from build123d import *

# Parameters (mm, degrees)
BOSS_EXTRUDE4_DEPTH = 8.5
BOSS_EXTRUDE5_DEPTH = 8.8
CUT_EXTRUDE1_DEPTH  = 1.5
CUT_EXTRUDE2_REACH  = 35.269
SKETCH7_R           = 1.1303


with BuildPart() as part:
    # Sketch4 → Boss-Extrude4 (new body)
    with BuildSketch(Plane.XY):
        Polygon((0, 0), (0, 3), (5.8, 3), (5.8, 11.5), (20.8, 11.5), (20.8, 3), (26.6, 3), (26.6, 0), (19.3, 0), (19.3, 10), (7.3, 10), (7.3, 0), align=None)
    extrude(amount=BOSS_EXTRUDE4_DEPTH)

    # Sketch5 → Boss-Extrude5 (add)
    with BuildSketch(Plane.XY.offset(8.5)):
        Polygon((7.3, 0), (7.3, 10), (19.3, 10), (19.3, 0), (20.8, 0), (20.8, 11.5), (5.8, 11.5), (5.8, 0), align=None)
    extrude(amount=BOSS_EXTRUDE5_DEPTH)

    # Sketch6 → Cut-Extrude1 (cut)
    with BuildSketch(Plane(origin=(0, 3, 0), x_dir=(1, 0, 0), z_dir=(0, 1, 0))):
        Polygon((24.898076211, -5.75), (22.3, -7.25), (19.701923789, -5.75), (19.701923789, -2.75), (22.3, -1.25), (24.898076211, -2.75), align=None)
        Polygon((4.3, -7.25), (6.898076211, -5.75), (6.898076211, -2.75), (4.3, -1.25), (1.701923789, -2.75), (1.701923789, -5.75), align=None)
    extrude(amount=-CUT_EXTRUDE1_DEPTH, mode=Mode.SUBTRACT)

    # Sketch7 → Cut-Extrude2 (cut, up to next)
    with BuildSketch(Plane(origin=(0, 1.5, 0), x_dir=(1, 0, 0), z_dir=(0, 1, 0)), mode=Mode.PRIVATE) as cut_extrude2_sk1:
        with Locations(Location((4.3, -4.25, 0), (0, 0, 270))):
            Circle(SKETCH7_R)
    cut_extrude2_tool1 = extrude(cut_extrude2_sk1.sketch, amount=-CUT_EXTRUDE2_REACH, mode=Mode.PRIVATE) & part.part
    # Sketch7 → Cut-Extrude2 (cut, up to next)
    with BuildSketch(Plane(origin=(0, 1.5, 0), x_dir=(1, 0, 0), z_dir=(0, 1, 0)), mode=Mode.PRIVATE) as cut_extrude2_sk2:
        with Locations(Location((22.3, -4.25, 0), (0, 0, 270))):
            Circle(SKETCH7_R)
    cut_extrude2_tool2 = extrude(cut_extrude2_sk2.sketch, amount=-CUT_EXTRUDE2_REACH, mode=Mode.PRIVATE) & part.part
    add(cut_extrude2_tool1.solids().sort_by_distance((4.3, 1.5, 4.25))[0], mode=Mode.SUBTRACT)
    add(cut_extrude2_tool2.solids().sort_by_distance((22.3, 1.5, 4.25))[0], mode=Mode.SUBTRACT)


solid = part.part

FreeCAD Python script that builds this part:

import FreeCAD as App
import Part
import Sketcher

V = App.Vector
Q = App.Units.Quantity

doc = App.newDocument("Part")
params = doc.addObject("Spreadsheet::Sheet", "Params")
for row, (alias, value) in enumerate([
    ("sketch1_width", "12 mm"),
    ("sketch1_width2", "15 mm"),
    ("sketch1_height", "3 mm"),
    ("sketch1_height2", "10 mm"),
    ("sketch1_width3", "7.3 mm"),
    ("pad1_length", "8.5 mm"),
    ("sketch2_width", "12 mm"),
    ("sketch2_width2", "15 mm"),
    ("sketch2_height", "10 mm"),
    ("sketch2_height2", "11.5 mm"),
    ("pad2_length", "8.8 mm"),
    ("sketch3_height", "3 mm"),
    ("sketch3_length", "3 mm"),
    ("pocket1_length", "1.5 mm"),
], start=1):
    params.set(f"A{row}", alias)
    params.set(f"B{row}", "=" + value)
    params.setAlias(f"B{row}", alias)

body = doc.addObject("PartDesign::Body", "Body")

# Sketch on XY plane
sketch1 = body.newObject("Sketcher::SketchObject", "Sketch")
sketch1.AttachmentSupport = (doc.getObject("XY_Plane"), [""])
sketch1.MapMode = "FlatFace"
sketch1.addGeometry([
    Part.LineSegment(V(0, 3, 0), V(0, 0, 0)),  # 0
    Part.LineSegment(V(0, 0, 0), V(7.3, 0, 0)),  # 1
    Part.LineSegment(V(7.3, 0, 0), V(7.3, 10, 0)),  # 2
    Part.LineSegment(V(7.3, 10, 0), V(19.3, 10, 0)),  # 3
    Part.LineSegment(V(19.3, 10, 0), V(19.3, 0, 0)),  # 4
    Part.LineSegment(V(19.3, 0, 0), V(26.6, 0, 0)),  # 5
    Part.LineSegment(V(26.6, 0, 0), V(26.6, 3, 0)),  # 6
    Part.LineSegment(V(26.6, 3, 0), V(20.8, 3, 0)),  # 7
    Part.LineSegment(V(20.8, 3, 0), V(20.8, 11.5, 0)),  # 8
    Part.LineSegment(V(20.8, 11.5, 0), V(5.8, 11.5, 0)),  # 9
    Part.LineSegment(V(5.8, 11.5, 0), V(5.8, 3, 0)),  # 10
    Part.LineSegment(V(5.8, 3, 0), V(0, 3, 0)),  # 11
], False)
sketch1.addConstraint([
    Sketcher.Constraint("Coincident", 0, 2, 1, 1),
    Sketcher.Constraint("Coincident", 1, 2, 2, 1),
    Sketcher.Constraint("Coincident", 2, 2, 3, 1),
    Sketcher.Constraint("Coincident", 3, 2, 4, 1),
    Sketcher.Constraint("Coincident", 4, 2, 5, 1),
    Sketcher.Constraint("Coincident", 5, 2, 6, 1),
    Sketcher.Constraint("Coincident", 6, 2, 7, 1),
    Sketcher.Constraint("Coincident", 7, 2, 8, 1),
    Sketcher.Constraint("Coincident", 8, 2, 9, 1),
    Sketcher.Constraint("Coincident", 9, 2, 10, 1),
    Sketcher.Constraint("Coincident", 10, 2, 11, 1),
    Sketcher.Constraint("Coincident", 11, 2, 0, 1),
    Sketcher.Constraint("Vertical", 0),
    Sketcher.Constraint("Horizontal", 1),
    Sketcher.Constraint("Vertical", 2),
    Sketcher.Constraint("Horizontal", 3),
    Sketcher.Constraint("Vertical", 4),
    Sketcher.Constraint("Horizontal", 5),
    Sketcher.Constraint("Vertical", 6),
    Sketcher.Constraint("Horizontal", 7),
    Sketcher.Constraint("Vertical", 8),
    Sketcher.Constraint("Horizontal", 9),
    Sketcher.Constraint("Vertical", 10),
    Sketcher.Constraint("Horizontal", 11),
    Sketcher.Constraint("Coincident", 0, 2, -1, 1),
    Sketcher.Constraint("PointOnObject", 4, 2, -1),
    Sketcher.Constraint("Horizontal", 7, 2, 10, 2),
    Sketcher.Constraint("Equal", 1, 5),
    Sketcher.Constraint("Equal", 7, 11),
    Sketcher.Constraint("DistanceX", 3, 1, 3, 2, 12.0),
    Sketcher.Constraint("DistanceX", 9, 2, 9, 1, 15.0),
    Sketcher.Constraint("DistanceY", 0, 2, 0, 1, 3.0),
    Sketcher.Constraint("DistanceY", 2, 1, 2, 2, 10.0),
    Sketcher.Constraint("DistanceX", 1, 1, 1, 2, 7.3),
    Sketcher.Constraint("DistanceY", 8, 1, 8, 2, 8.5),
])
sketch1.setExpression("Constraints[29]", "Params.sketch1_width")
sketch1.setExpression("Constraints[30]", "Params.sketch1_width2")
sketch1.setExpression("Constraints[31]", "Params.sketch1_height")
sketch1.setExpression("Constraints[32]", "Params.sketch1_height2")
sketch1.setExpression("Constraints[33]", "Params.sketch1_width3")
pad1 = body.newObject("PartDesign::Pad", "Pad")
pad1.Profile = sketch1
pad1.setExpression("Length", "Params.pad1_length")

# Sketch on XY plane
sketch2 = body.newObject("Sketcher::SketchObject", "Sketch001")
sketch2.AttachmentSupport = (doc.getObject("XY_Plane"), [""])
sketch2.MapMode = "FlatFace"
sketch2.AttachmentOffset = App.Placement(V(0, 0, 8.5), App.Rotation())
sketch2.addGeometry([
    Part.LineSegment(V(7.3, 0, 0), V(7.3, 10, 0)),  # 0
    Part.LineSegment(V(7.3, 10, 0), V(19.3, 10, 0)),  # 1
    Part.LineSegment(V(19.3, 10, 0), V(19.3, 0, 0)),  # 2
    Part.LineSegment(V(19.3, 0, 0), V(20.8, 0, 0)),  # 3
    Part.LineSegment(V(20.8, 0, 0), V(20.8, 11.5, 0)),  # 4
    Part.LineSegment(V(20.8, 11.5, 0), V(5.8, 11.5, 0)),  # 5
    Part.LineSegment(V(5.8, 11.5, 0), V(5.8, 0, 0)),  # 6
    Part.LineSegment(V(5.8, 0, 0), V(7.3, 0, 0)),  # 7
], False)
sketch2.addConstraint([
    Sketcher.Constraint("Coincident", 0, 2, 1, 1),
    Sketcher.Constraint("Coincident", 1, 2, 2, 1),
    Sketcher.Constraint("Coincident", 2, 2, 3, 1),
    Sketcher.Constraint("Coincident", 3, 2, 4, 1),
    Sketcher.Constraint("Coincident", 4, 2, 5, 1),
    Sketcher.Constraint("Coincident", 5, 2, 6, 1),
    Sketcher.Constraint("Coincident", 6, 2, 7, 1),
    Sketcher.Constraint("Coincident", 7, 2, 0, 1),
    Sketcher.Constraint("Vertical", 0),
    Sketcher.Constraint("Horizontal", 1),
    Sketcher.Constraint("Vertical", 2),
    Sketcher.Constraint("Horizontal", 3),
    Sketcher.Constraint("Vertical", 4),
    Sketcher.Constraint("Horizontal", 5),
    Sketcher.Constraint("Vertical", 6),
    Sketcher.Constraint("Horizontal", 7),
    Sketcher.Constraint("PointOnObject", 2, 2, -1),
    Sketcher.Constraint("PointOnObject", 6, 2, -1),
    Sketcher.Constraint("Equal", 3, 7),
    Sketcher.Constraint("DistanceX", 1, 1, 1, 2, 12.0),
    Sketcher.Constraint("DistanceX", 5, 2, 5, 1, 15.0),
    Sketcher.Constraint("DistanceY", 0, 1, 0, 2, 10.0),
    Sketcher.Constraint("DistanceY", 4, 1, 4, 2, 11.5),
    Sketcher.Constraint("DistanceX", -1, 1, 0, 2, 7.3),
])
sketch2.setExpression("Constraints[19]", "Params.sketch2_width")
sketch2.setExpression("Constraints[20]", "Params.sketch2_width2")
sketch2.setExpression("Constraints[21]", "Params.sketch2_height")
sketch2.setExpression("Constraints[22]", "Params.sketch2_height2")
pad2 = body.newObject("PartDesign::Pad", "Pad001")
pad2.Profile = sketch2
pad2.setExpression("Length", "Params.pad2_length")

# Sketch on XZ plane
sketch3 = body.newObject("Sketcher::SketchObject", "Sketch002")
sketch3.AttachmentSupport = (doc.getObject("XZ_Plane"), [""])
sketch3.MapMode = "FlatFace"
sketch3.AttachmentOffset = App.Placement(V(0, 0, -3), App.Rotation())
sketch3.addGeometry([
    Part.LineSegment(V(22.3, 7.2, 0), V(24.9, 5.8, 0)),  # 0
    Part.LineSegment(V(24.9, 5.8, 0), V(24.9, 2.8, 0)),  # 1
    Part.LineSegment(V(24.9, 2.8, 0), V(22.3, 1.2, 0)),  # 2
    Part.LineSegment(V(22.3, 1.2, 0), V(19.7, 2.8, 0)),  # 3
    Part.LineSegment(V(19.7, 2.8, 0), V(19.7, 5.8, 0)),  # 4
    Part.LineSegment(V(19.7, 5.8, 0), V(22.3, 7.2, 0)),  # 5
    Part.LineSegment(V(4.3, 7.2, 0), V(6.9, 5.8, 0)),  # 6
    Part.LineSegment(V(6.9, 5.8, 0), V(6.9, 2.8, 0)),  # 7
    Part.LineSegment(V(6.9, 2.8, 0), V(4.3, 1.2, 0)),  # 8
    Part.LineSegment(V(4.3, 1.2, 0), V(1.7, 2.8, 0)),  # 9
    Part.LineSegment(V(1.7, 2.8, 0), V(1.7, 5.8, 0)),  # 10
    Part.LineSegment(V(1.7, 5.8, 0), V(4.3, 7.2, 0)),  # 11
], False)
sketch3.addConstraint([
    Sketcher.Constraint("Coincident", 0, 2, 1, 1),
    Sketcher.Constraint("Coincident", 1, 2, 2, 1),
    Sketcher.Constraint("Coincident", 2, 2, 3, 1),
    Sketcher.Constraint("Coincident", 3, 2, 4, 1),
    Sketcher.Constraint("Coincident", 4, 2, 5, 1),
    Sketcher.Constraint("Coincident", 5, 2, 0, 1),
    Sketcher.Constraint("Coincident", 6, 2, 7, 1),
    Sketcher.Constraint("Coincident", 7, 2, 8, 1),
    Sketcher.Constraint("Coincident", 8, 2, 9, 1),
    Sketcher.Constraint("Coincident", 9, 2, 10, 1),
    Sketcher.Constraint("Coincident", 10, 2, 11, 1),
    Sketcher.Constraint("Coincident", 11, 2, 6, 1),
    Sketcher.Constraint("Vertical", 1),
    Sketcher.Constraint("Vertical", 4),
    Sketcher.Constraint("Vertical", 7),
    Sketcher.Constraint("Vertical", 10),
    Sketcher.Constraint("Parallel", 0, 3),
    Sketcher.Constraint("Parallel", 2, 5),
    Sketcher.Constraint("Parallel", 3, 6),
    Sketcher.Constraint("Parallel", 5, 8),
    Sketcher.Constraint("Parallel", 6, 9),
    Sketcher.Constraint("Parallel", 8, 11),
    Sketcher.Constraint("Horizontal", 1, 2, 3, 2),
    Sketcher.Constraint("Horizontal", 0, 2, 4, 2),
    Sketcher.Constraint("Horizontal", 4, 2, 6, 2),
    Sketcher.Constraint("Horizontal", 3, 2, 7, 2),
    Sketcher.Constraint("Horizontal", 2, 2, 8, 2),
    Sketcher.Constraint("Horizontal", 7, 2, 9, 2),
    Sketcher.Constraint("Horizontal", 6, 2, 10, 2),
    Sketcher.Constraint("Vertical", 2, 2, 5, 2),
    Sketcher.Constraint("DistanceY", 1, 2, 1, 1, 3.0),
    Sketcher.Constraint("Angle", 0, Q("-30 deg")),
    Sketcher.Constraint("Distance", 0, 3.0),
    Sketcher.Constraint("DistanceX", 6, 2, 0, 2, 18.0),
    Sketcher.Constraint("DistanceX", -1, 1, 2, 2, 22.3),
    Sketcher.Constraint("DistanceY", -1, 1, 0, 2, 5.75),
])
sketch3.setExpression("Constraints[30]", "Params.sketch3_height")
sketch3.setExpression("Constraints[32]", "Params.sketch3_length")
pocket1 = body.newObject("PartDesign::Pocket", "Pocket")
pocket1.Profile = sketch3
pocket1.setExpression("Length", "Params.pocket1_length")
pocket1.Reversed = True

# Sketch on XZ plane
sketch4 = body.newObject("Sketcher::SketchObject", "Sketch003")
sketch4.AttachmentSupport = (doc.getObject("XZ_Plane"), [""])
sketch4.MapMode = "FlatFace"
sketch4.AttachmentOffset = App.Placement(V(0, 0, -1.5), App.Rotation())
sketch4.addGeometry(Part.Circle(V(4.3, 4.2, 0), V(0, 0, 1), 1.1), False)
sketch4.addConstraint([
    Sketcher.Constraint("Diameter", 0, 2.2606),
    Sketcher.Constraint("DistanceX", -1, 1, 0, 3, 4.3),
    Sketcher.Constraint("DistanceY", -1, 1, 0, 3, 4.25),
])
pocket2 = body.newObject("PartDesign::Pocket", "Pocket001")
pocket2.Profile = sketch4
pocket2.Type = "UpToFirst"
pocket2.Reversed = True

# Sketch on XZ plane
sketch5 = body.newObject("Sketcher::SketchObject", "Sketch004")
sketch5.AttachmentSupport = (doc.getObject("XZ_Plane"), [""])
sketch5.MapMode = "FlatFace"
sketch5.AttachmentOffset = App.Placement(V(0, 0, -1.5), App.Rotation())
sketch5.addGeometry(Part.Circle(V(22.3, 4.2, 0), V(0, 0, 1), 1.1), False)
sketch5.addConstraint([
    Sketcher.Constraint("Diameter", 0, 2.2606),
    Sketcher.Constraint("DistanceX", -1, 1, 0, 3, 22.3),
    Sketcher.Constraint("DistanceY", -1, 1, 0, 3, 4.25),
])
pocket3 = body.newObject("PartDesign::Pocket", "Pocket002")
pocket3.Profile = sketch5
pocket3.Type = "UpToFirst"
pocket3.Reversed = True

doc.recompute()
